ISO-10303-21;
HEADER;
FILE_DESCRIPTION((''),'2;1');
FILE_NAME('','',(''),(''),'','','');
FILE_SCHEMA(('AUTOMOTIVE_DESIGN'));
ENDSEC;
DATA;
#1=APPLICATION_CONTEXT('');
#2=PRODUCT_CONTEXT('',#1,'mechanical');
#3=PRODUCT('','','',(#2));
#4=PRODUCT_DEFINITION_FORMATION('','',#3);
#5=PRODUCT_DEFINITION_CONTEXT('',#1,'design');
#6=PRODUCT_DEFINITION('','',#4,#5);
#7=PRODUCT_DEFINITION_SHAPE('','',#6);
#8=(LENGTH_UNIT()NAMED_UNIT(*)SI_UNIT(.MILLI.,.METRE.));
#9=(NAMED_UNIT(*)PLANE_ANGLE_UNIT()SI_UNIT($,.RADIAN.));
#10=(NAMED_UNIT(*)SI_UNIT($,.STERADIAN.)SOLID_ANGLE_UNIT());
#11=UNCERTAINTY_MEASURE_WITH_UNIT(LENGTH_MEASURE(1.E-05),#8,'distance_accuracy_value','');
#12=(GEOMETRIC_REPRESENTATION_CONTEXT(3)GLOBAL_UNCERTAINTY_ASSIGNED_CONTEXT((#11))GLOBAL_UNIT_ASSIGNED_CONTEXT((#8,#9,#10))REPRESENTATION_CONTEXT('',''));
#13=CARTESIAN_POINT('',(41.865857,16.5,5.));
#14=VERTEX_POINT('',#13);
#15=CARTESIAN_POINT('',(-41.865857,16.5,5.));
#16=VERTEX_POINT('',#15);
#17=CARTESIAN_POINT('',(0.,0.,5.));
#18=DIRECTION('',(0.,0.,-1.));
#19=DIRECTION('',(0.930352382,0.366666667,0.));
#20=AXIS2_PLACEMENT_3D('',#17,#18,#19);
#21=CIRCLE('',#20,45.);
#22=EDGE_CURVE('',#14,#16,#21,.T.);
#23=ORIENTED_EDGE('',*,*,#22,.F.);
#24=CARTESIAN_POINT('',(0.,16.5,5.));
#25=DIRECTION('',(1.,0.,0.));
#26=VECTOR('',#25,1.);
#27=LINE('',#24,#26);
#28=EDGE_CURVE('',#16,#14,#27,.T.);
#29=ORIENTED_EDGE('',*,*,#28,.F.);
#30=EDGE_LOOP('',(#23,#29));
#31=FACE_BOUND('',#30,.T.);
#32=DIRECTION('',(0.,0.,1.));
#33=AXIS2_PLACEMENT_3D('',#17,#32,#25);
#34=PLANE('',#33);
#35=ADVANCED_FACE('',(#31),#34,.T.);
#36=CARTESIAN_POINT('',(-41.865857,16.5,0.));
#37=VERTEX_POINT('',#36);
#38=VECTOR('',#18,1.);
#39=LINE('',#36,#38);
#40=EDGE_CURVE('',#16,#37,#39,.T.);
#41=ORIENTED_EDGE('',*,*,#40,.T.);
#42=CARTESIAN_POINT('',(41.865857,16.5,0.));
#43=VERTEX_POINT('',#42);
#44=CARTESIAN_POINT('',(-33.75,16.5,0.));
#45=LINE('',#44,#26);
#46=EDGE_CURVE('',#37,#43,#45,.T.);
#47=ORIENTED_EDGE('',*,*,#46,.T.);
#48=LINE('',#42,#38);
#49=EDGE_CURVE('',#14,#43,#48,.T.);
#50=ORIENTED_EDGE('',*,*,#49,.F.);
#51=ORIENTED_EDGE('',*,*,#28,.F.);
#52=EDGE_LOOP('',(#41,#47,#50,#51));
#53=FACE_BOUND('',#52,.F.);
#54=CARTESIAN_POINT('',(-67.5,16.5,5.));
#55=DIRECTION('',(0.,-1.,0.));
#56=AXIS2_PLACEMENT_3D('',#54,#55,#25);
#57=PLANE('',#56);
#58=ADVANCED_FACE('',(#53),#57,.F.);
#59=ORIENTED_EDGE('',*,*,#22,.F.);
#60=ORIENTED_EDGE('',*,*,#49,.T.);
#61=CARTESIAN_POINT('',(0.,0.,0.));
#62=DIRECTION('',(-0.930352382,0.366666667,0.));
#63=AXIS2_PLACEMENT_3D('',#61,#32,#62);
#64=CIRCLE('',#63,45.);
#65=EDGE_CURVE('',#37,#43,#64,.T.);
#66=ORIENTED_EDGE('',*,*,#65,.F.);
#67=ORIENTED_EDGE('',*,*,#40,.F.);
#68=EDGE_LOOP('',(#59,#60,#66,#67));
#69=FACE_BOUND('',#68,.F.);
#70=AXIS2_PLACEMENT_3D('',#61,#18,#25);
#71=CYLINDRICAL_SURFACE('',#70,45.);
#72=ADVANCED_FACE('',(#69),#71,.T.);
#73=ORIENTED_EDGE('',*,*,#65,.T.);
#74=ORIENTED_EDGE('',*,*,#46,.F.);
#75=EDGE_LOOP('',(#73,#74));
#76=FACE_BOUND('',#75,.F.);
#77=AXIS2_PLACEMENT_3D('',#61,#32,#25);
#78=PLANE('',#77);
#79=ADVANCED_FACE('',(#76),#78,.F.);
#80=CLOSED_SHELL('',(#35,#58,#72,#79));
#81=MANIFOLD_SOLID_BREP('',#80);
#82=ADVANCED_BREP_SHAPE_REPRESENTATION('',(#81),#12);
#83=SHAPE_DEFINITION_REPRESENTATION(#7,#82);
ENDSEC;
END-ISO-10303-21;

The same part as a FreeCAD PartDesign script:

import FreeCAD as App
import Part
import Sketcher

V = App.Vector
Q = App.Units.Quantity


def add_polygon(sketch, points):
    """Adds a closed chain of lines whose ends are joined by coincident constraints."""
    first, n = sketch.GeometryCount, len(points)
    for a, b in zip(points, points[1:] + points[:1]):
        sketch.addGeometry(Part.LineSegment(App.Vector(*a, 0), App.Vector(*b, 0)), False)
    for i in range(n):
        sketch.addConstraint(Sketcher.Constraint("Coincident", first + i, 2, first + (i + 1) % n, 1))

doc = App.newDocument("Part")
body = doc.addObject("PartDesign::Body", "Body")

sketch1 = doc.addObject("Sketcher::SketchObject", "Sketch")
body.addObject(sketch1)
sketch1.AttachmentSupport = (doc.XY_Plane, [""])
sketch1.MapMode = "FlatFace"
sketch1.addGeometry(Part.Circle(V(0, 0, 0), V(0, 0, 1), 45), False)
sketch1.addConstraint(Sketcher.Constraint("Coincident", 0, 3, -1, 1))
sketch1.addConstraint(Sketcher.Constraint("Diameter", 0, Q("90 mm")))
pad1 = doc.addObject("PartDesign::Pad", "Pad")
body.addObject(pad1)
pad1.Profile = sketch1
pad1.Length = 5

sketch2 = doc.addObject("Sketcher::SketchObject", "Sketch001")
body.addObject(sketch2)
sketch2.AttachmentSupport = (doc.XY_Plane, [""])
sketch2.MapMode = "FlatFace"
sketch2.AttachmentOffset = App.Placement(V(0, 0, 5), App.Rotation())
add_polygon(sketch2, [(-67.5, 61.5), (-67.5, 16.5), (67.5, 16.5), (67.5, 61.5)])
sketch2.addConstraint(Sketcher.Constraint("Vertical", 0))
sketch2.addConstraint(Sketcher.Constraint("Horizontal", 1))
sketch2.addConstraint(Sketcher.Constraint("Vertical", 2))
sketch2.addConstraint(Sketcher.Constraint("Horizontal", 3))
sketch2.addConstraint(Sketcher.Constraint("DistanceX", 1, 1, 1, 2, Q("135 mm")))
sketch2.addConstraint(Sketcher.Constraint("DistanceY", 0, 2, 0, 1, Q("45 mm")))
sketch2.addConstraint(Sketcher.Constraint("DistanceX", 0, 2, -1, 1, Q("67.5 mm")))
sketch2.addConstraint(Sketcher.Constraint("DistanceY", -1, 1, 0, 2, Q("16.5 mm")))
pocket1 = doc.addObject("PartDesign::Pocket", "Pocket")
body.addObject(pocket1)
pocket1.Profile = sketch2
pocket1.Type = "ThroughAll"

doc.recompute()
